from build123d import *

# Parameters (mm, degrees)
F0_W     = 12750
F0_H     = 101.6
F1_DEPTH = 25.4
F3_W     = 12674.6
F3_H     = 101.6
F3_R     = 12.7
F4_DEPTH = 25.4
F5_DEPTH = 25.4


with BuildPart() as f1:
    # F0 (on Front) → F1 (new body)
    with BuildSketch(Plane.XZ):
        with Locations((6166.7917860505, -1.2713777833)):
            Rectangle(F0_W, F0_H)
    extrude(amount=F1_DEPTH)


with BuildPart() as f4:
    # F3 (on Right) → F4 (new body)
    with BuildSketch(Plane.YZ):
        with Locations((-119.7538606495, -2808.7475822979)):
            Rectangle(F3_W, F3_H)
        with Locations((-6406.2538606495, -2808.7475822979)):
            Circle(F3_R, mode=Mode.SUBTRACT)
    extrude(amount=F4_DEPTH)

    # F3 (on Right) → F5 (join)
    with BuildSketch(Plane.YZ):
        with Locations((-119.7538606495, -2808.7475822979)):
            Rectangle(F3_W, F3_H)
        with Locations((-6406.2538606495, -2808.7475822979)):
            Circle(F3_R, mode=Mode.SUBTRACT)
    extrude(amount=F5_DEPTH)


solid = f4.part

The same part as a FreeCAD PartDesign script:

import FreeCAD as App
import Part
import Sketcher
Q = App.Units.Quantity

doc = App.newDocument("Part")
body = doc.addObject("PartDesign::Body", "Body")

sketch1 = doc.addObject("Sketcher::SketchObject", "Sketch")
body.addObject(sketch1)
sketch1.AttachmentSupport = (doc.XZ_Plane, [""])
sketch1.MapMode = "FlatFace"
sketch1.addGeometry([
    Part.LineSegment(App.Vector(-208, 50, 0), App.Vector(-208, -52, 0)),
    Part.LineSegment(App.Vector(-208, -52, 0), App.Vector(12542, -52, 0)),
    Part.LineSegment(App.Vector(12542, -52, 0), App.Vector(12542, 50, 0)),
    Part.LineSegment(App.Vector(12542, 50, 0), App.Vector(-208, 50, 0)),
], False)
sketch1.addConstraint([
    Sketcher.Constraint("Coincident", 0, 2, 1, 1),
    Sketcher.Constraint("Coincident", 1, 2, 2, 1),
    Sketcher.Constraint("Coincident", 2, 2, 3, 1),
    Sketcher.Constraint("Coincident", 3, 2, 0, 1),
    Sketcher.Constraint("Vertical", 0),
    Sketcher.Constraint("Horizontal", 1),
    Sketcher.Constraint("Vertical", 2),
    Sketcher.Constraint("Horizontal", 3),
    Sketcher.Constraint("DistanceY", 0, 2, 0, 1, Q("4 in")),
    Sketcher.Constraint("DistanceX", 1, 1, 1, 2, 12750.0),
    Sketcher.Constraint("DistanceX", 0, 2, -1, 1, 208.208214),
    Sketcher.Constraint("DistanceY", 0, 2, -1, 1, 52.071378),
])
pad1 = doc.addObject("PartDesign::Pad", "Pad")
body.addObject(pad1)
pad1.Profile = sketch1
pad1.Length = Q("1 in")
body2 = doc.addObject("PartDesign::Body", "Body001")

sketch2 = doc.addObject("Sketcher::SketchObject", "Sketch001")
body2.addObject(sketch2)
sketch2.AttachmentSupport = (doc.getObject("YZ_Plane001"), [""])
sketch2.MapMode = "FlatFace"
sketch2.addGeometry([
    Part.LineSegment(App.Vector(-6457, -2758, 0), App.Vector(-6457, -2860, 0)),
    Part.LineSegment(App.Vector(-6457, -2860, 0), App.Vector(6218, -2860, 0)),
    Part.LineSegment(App.Vector(6218, -2860, 0), App.Vector(6218, -2758, 0)),
    Part.LineSegment(App.Vector(6218, -2758, 0), App.Vector(-6457, -2758, 0)),
    Part.Circle(App.Vector(-6406, -2809, 0), App.Vector(0, 0, 1), 13),
], False)
sketch2.addConstraint([
    Sketcher.Constraint("Coincident", 0, 2, 1, 1),
    Sketcher.Constraint("Coincident", 1, 2, 2, 1),
    Sketcher.Constraint("Coincident", 2, 2, 3, 1),
    Sketcher.Constraint("Coincident", 3, 2, 0, 1),
    Sketcher.Constraint("Vertical", 0),
    Sketcher.Constraint("Horizontal", 1),
    Sketcher.Constraint("Vertical", 2),
    Sketcher.Constraint("Horizontal", 3),
    Sketcher.Constraint("Diameter", 4, Q("1 in")),
    Sketcher.Constraint("DistanceX", 1, 1, 1, 2, Q("499 in")),
    Sketcher.Constraint("DistanceY", 0, 2, 0, 1, Q("4 in")),
    Sketcher.Constraint("DistanceX", 0, 2, 4, 3, Q("2 in")),
    Sketcher.Constraint("DistanceY", 0, 2, 4, 3, Q("2 in")),
    Sketcher.Constraint("DistanceX", 4, 3, -1, 1, 6406.253861),
    Sketcher.Constraint("DistanceY", 4, 3, -1, 1, 2808.747582),
])
pad2 = doc.addObject("PartDesign::Pad", "Pad001")
body2.addObject(pad2)
pad2.Profile = sketch2
pad2.Length = Q("1 in")

sketch3 = doc.addObject("Sketcher::SketchObject", "Sketch002")
body2.addObject(sketch3)
sketch3.AttachmentSupport = (doc.getObject("YZ_Plane001"), [""])
sketch3.MapMode = "FlatFace"
sketch3.addGeometry([
    Part.LineSegment(App.Vector(-6457, -2758, 0), App.Vector(-6457, -2860, 0)),
    Part.LineSegment(App.Vector(-6457, -2860, 0), App.Vector(6218, -2860, 0)),
    Part.LineSegment(App.Vector(6218, -2860, 0), App.Vector(6218, -2758, 0)),
    Part.LineSegment(App.Vector(6218, -2758, 0), App.Vector(-6457, -2758, 0)),
    Part.Circle(App.Vector(-6406, -2809, 0), App.Vector(0, 0, 1), 13),
], False)
sketch3.addConstraint([
    Sketcher.Constraint("Coincident", 0, 2, 1, 1),
    Sketcher.Constraint("Coincident", 1, 2, 2, 1),
    Sketcher.Constraint("Coincident", 2, 2, 3, 1),
    Sketcher.Constraint("Coincident", 3, 2, 0, 1),
    Sketcher.Constraint("Vertical", 0),
    Sketcher.Constraint("Horizontal", 1),
    Sketcher.Constraint("Vertical", 2),
    Sketcher.Constraint("Horizontal", 3),
    Sketcher.Constraint("Diameter", 4, Q("1 in")),
    Sketcher.Constraint("DistanceX", 1, 1, 1, 2, Q("499 in")),
    Sketcher.Constraint("DistanceY", 0, 2, 0, 1, Q("4 in")),
    Sketcher.Constraint("DistanceX", 0, 2, 4, 3, Q("2 in")),
    Sketcher.Constraint("DistanceY", 0, 2, 4, 3, Q("2 in")),
    Sketcher.Constraint("DistanceX", 4, 3, -1, 1, 6406.253861),
    Sketcher.Constraint("DistanceY", 4, 3, -1, 1, 2808.747582),
])
pad3 = doc.addObject("PartDesign::Pad", "Pad002")
body2.addObject(pad3)
pad3.Profile = sketch3
pad3.Length = Q("1 in")
body.Visibility = False

doc.recompute()
